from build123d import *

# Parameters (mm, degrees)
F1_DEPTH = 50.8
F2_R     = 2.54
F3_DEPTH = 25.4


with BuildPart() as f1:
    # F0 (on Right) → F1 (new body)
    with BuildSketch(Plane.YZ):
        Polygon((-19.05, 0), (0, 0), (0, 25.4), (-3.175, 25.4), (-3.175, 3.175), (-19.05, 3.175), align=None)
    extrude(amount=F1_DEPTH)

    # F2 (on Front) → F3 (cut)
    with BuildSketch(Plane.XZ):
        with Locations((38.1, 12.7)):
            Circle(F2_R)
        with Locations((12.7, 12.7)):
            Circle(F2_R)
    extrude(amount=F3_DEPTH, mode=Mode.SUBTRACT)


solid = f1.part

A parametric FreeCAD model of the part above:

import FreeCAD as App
import Part
import Sketcher

V = App.Vector
Q = App.Units.Quantity


def add_polygon(sketch, points):
    """Adds a closed chain of lines whose ends are joined by coincident constraints."""
    first, n = sketch.GeometryCount, len(points)
    for a, b in zip(points, points[1:] + points[:1]):
        sketch.addGeometry(Part.LineSegment(App.Vector(*a, 0), App.Vector(*b, 0)), False)
    for i in range(n):
        sketch.addConstraint(Sketcher.Constraint("Coincident", first + i, 2, first + (i + 1) % n, 1))

doc = App.newDocument("Part")
body = doc.addObject("PartDesign::Body", "Body")

# Sketch on YZ plane
sketch1 = body.newObject("Sketcher::SketchObject", "Sketch")
sketch1.AttachmentSupport = (doc.getObject("YZ_Plane"), [""])
sketch1.MapMode = "FlatFace"
add_polygon(sketch1, [(-19.1, 0), (0, 0), (0, 25.4), (-3.2, 25.4), (-3.2, 3.2), (-19.1, 3.2)])  # lines 0-5
sketch1.addConstraint([
    Sketcher.Constraint("Horizontal", 0),
    Sketcher.Constraint("Vertical", 1),
    Sketcher.Constraint("Horizontal", 2),
    Sketcher.Constraint("Vertical", 3),
    Sketcher.Constraint("Horizontal", 4),
    Sketcher.Constraint("Vertical", 5),
    Sketcher.Constraint("Coincident", 0, 2, -1, 1),
    Sketcher.Constraint("Equal", 2, 5),
    Sketcher.Constraint("DistanceY", 1, 1, 1, 2, Q("1 in")),
    Sketcher.Constraint("DistanceX", 0, 1, 0, 2, Q("0.75 in")),
    Sketcher.Constraint("DistanceX", 2, 2, 2, 1, Q("0.125 in")),
])
pad1 = body.newObject("PartDesign::Pad", "Pad")
pad1.Profile = sketch1
pad1.Length = Q("2 in")

# Sketch on XZ plane
sketch2 = body.newObject("Sketcher::SketchObject", "Sketch001")
sketch2.AttachmentSupport = (doc.getObject("XZ_Plane"), [""])
sketch2.MapMode = "FlatFace"
sketch2.addGeometry([
    Part.Circle(V(38.1, 12.7, 0), V(0, 0, 1), 2.5),
    Part.Circle(V(12.7, 12.7, 0), V(0, 0, 1), 2.5),
], False)
sketch2.addConstraint([
    Sketcher.Constraint("Equal", 0, 1),
    Sketcher.Constraint("Horizontal", 0, 3, 1, 3),
    Sketcher.Constraint("Diameter", 0, Q("0.2 in")),
    Sketcher.Constraint("DistanceX", 1, 3, 0, 3, Q("1 in")),
    Sketcher.Constraint("DistanceX", -1, 1, 0, 3, Q("1.5 in")),
    Sketcher.Constraint("DistanceY", -1, 1, 0, 3, Q("0.5 in")),
])
pocket1 = body.newObject("PartDesign::Pocket", "Pocket")
pocket1.Profile = sketch2
pocket1.Length = Q("1 in")
pocket1.Reversed = True

doc.recompute()
